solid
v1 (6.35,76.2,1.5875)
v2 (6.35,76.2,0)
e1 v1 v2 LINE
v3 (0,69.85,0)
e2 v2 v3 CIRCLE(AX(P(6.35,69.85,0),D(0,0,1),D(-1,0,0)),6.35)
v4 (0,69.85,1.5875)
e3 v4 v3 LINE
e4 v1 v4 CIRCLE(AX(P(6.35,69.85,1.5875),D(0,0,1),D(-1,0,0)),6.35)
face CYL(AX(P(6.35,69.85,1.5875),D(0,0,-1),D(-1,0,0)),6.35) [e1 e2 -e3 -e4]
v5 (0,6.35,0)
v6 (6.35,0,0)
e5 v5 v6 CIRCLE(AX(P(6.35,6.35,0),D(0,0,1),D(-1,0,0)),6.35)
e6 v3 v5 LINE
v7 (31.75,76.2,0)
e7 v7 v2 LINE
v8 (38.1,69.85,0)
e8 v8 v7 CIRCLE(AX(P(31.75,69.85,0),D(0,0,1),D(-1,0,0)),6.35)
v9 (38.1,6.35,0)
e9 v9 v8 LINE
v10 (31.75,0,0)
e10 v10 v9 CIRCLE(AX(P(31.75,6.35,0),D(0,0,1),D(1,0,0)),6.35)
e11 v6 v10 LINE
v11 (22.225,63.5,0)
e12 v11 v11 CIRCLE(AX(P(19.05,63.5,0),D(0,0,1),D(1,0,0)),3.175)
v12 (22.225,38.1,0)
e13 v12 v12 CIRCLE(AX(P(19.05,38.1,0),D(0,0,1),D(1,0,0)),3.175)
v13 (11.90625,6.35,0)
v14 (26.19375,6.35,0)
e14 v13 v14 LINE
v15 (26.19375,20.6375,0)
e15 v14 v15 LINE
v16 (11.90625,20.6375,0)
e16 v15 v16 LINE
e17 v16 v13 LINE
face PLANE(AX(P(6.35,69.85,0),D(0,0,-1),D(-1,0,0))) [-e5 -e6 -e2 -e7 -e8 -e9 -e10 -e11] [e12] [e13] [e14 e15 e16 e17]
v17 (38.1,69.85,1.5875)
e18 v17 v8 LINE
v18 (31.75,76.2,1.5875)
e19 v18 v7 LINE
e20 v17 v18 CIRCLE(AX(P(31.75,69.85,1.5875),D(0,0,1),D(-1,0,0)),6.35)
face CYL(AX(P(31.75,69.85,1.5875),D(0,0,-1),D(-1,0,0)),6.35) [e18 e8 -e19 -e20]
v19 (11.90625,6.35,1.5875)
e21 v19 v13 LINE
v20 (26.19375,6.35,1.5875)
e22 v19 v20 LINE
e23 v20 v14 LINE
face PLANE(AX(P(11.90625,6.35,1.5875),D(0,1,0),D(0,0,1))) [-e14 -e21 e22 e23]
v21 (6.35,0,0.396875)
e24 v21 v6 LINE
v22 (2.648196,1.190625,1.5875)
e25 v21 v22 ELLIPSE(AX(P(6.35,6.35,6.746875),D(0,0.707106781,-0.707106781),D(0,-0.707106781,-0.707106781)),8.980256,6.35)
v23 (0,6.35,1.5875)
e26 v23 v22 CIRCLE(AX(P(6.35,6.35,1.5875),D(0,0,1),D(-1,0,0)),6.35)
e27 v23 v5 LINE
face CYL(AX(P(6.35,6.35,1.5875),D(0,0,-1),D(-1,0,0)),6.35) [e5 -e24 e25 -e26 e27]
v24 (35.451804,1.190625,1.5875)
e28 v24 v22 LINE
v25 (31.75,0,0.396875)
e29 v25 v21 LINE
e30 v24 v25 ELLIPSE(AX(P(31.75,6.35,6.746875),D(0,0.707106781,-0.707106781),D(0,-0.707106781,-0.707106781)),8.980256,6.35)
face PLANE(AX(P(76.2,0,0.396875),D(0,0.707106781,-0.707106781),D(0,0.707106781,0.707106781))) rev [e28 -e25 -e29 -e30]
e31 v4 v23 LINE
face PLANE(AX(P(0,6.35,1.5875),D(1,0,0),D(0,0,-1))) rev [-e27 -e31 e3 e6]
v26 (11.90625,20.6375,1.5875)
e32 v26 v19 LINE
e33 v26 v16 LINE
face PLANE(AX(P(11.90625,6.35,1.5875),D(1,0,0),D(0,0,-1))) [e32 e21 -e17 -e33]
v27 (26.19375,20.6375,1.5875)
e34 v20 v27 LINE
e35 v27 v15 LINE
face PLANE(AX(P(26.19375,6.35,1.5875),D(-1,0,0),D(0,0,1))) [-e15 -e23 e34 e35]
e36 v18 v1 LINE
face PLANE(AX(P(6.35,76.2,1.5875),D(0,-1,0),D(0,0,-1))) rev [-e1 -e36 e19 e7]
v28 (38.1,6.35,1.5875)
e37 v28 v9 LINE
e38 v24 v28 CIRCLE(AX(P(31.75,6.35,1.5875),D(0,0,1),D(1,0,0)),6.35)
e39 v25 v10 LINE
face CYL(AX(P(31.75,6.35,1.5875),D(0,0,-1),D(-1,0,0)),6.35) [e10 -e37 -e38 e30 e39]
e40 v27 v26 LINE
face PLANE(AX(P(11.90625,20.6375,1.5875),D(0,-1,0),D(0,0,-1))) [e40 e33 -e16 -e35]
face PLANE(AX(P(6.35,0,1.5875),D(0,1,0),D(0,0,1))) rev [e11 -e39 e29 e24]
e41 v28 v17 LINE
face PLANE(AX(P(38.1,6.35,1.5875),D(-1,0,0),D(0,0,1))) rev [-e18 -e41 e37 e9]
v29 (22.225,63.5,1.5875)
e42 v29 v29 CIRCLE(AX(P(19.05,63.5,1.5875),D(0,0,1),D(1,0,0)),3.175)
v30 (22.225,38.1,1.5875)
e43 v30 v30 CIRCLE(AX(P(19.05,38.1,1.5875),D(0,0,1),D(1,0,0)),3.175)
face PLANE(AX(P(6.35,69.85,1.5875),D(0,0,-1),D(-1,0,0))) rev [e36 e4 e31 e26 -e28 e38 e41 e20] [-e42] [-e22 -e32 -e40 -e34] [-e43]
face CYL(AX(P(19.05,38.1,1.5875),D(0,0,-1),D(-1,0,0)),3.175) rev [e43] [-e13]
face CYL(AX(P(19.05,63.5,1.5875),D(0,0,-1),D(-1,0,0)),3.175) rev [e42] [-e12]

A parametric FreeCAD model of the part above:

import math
import FreeCAD as App
import Part
import Sketcher
from FreeCAD import Vector
Q = App.Units.Quantity


def add_polygon(sketch, points):
    """Adds a closed chain of lines whose ends are joined by coincident constraints."""
    first, n = sketch.GeometryCount, len(points)
    for a, b in zip(points, points[1:] + points[:1]):
        sketch.addGeometry(Part.LineSegment(App.Vector(*a, 0), App.Vector(*b, 0)), False)
    for i in range(n):
        sketch.addConstraint(Sketcher.Constraint("Coincident", first + i, 2, first + (i + 1) % n, 1))

doc = App.newDocument("Part")
body = doc.addObject("PartDesign::Body", "Body")

sketch1 = body.newObject("Sketcher::SketchObject", "Sketch")
sketch1.AttachmentSupport = (doc.getObject("XY_Plane"), [""])
sketch1.MapMode = "FlatFace"
sketch1.addGeometry(Part.LineSegment(Vector(6.3, 0, 0), Vector(31.8, 0, 0)), False)
sketch1.addGeometry(Part.ArcOfCircle(Part.Circle(Vector(31.8, 6.3, 0), Vector(0, 0, 1), 6.3), math.radians(-90), math.radians(0)), False)
sketch1.addGeometry(Part.LineSegment(Vector(38.1, 6.3, 0), Vector(38.1, 69.8, 0)), False)
sketch1.addGeometry(Part.ArcOfCircle(Part.Circle(Vector(31.8, 69.9, 0), Vector(0, 0, 1), 6.3), math.radians(0), math.radians(90)), False)
sketch1.addGeometry(Part.LineSegment(Vector(31.8, 76.2, 0), Vector(6.3, 76.2, 0)), False)
sketch1.addGeometry(Part.ArcOfCircle(Part.Circle(Vector(6.3, 69.9, 0), Vector(0, 0, 1), 6.3), math.radians(90), math.radians(180)), False)
sketch1.addGeometry(Part.LineSegment(Vector(0, 69.8, 0), Vector(0, 6.3, 0)), False)
sketch1.addGeometry(Part.ArcOfCircle(Part.Circle(Vector(6.3, 6.3, 0), Vector(0, 0, 1), 6.3), math.radians(180), math.radians(270)), False)
add_polygon(sketch1, [(26.2, 6.3), (11.9, 6.3), (11.9, 20.6), (26.2, 20.6)])
sketch1.addGeometry(Part.Circle(Vector(19.1, 38.1, 0), Vector(0, 0, 1), 3.2), False)
sketch1.addGeometry(Part.Circle(Vector(19.1, 63.5, 0), Vector(0, 0, 1), 3.2), False)
sketch1.addConstraint(Sketcher.Constraint("Tangent", 0, 2, 1, 1))
sketch1.addConstraint(Sketcher.Constraint("Tangent", 1, 2, 2, 1))
sketch1.addConstraint(Sketcher.Constraint("Tangent", 2, 2, 3, 1))
sketch1.addConstraint(Sketcher.Constraint("Tangent", 3, 2, 4, 1))
sketch1.addConstraint(Sketcher.Constraint("Tangent", 4, 2, 5, 1))
sketch1.addConstraint(Sketcher.Constraint("Tangent", 5, 2, 6, 1))
sketch1.addConstraint(Sketcher.Constraint("Tangent", 6, 2, 7, 1))
sketch1.addConstraint(Sketcher.Constraint("Tangent", 7, 2, 0, 1))
sketch1.addConstraint(Sketcher.Constraint("Horizontal", 0))
sketch1.addConstraint(Sketcher.Constraint("Vertical", 2))
sketch1.addConstraint(Sketcher.Constraint("Horizontal", 4))
sketch1.addConstraint(Sketcher.Constraint("Vertical", 6))
sketch1.addConstraint(Sketcher.Constraint("Horizontal", 8))
sketch1.addConstraint(Sketcher.Constraint("Vertical", 9))
sketch1.addConstraint(Sketcher.Constraint("Horizontal", 10))
sketch1.addConstraint(Sketcher.Constraint("Vertical", 11))
sketch1.addConstraint(Sketcher.Constraint("Equal", 1, 3))
sketch1.addConstraint(Sketcher.Constraint("Equal", 3, 5))
sketch1.addConstraint(Sketcher.Constraint("Equal", 5, 7))
sketch1.addConstraint(Sketcher.Constraint("Equal", 12, 13))
sketch1.addConstraint(Sketcher.Constraint("PointOnObject", 0, 2, -1))
sketch1.addConstraint(Sketcher.Constraint("PointOnObject", 5, 2, -2))
sketch1.addConstraint(Sketcher.Constraint("Horizontal", 6, 2, 8, 2))
sketch1.addConstraint(Sketcher.Constraint("Vertical", 12, 3, 13, 3))
sketch1.addConstraint(Sketcher.Constraint("Equal", 10, 9))
sketch1.addConstraint(Sketcher.Constraint("Diameter", 12, Q("0.25 in")))
sketch1.addConstraint(Sketcher.Constraint("DistanceX", 0, 1, 0, 2, Q("1 in")))
sketch1.addConstraint(Sketcher.Constraint("Radius", 1, Q("0.25 in")))
sketch1.addConstraint(Sketcher.Constraint("DistanceY", 2, 1, 2, 2, Q("2.5 in")))
sketch1.addConstraint(Sketcher.Constraint("DistanceY", 12, 3, 13, 3, Q("1 in")))
sketch1.addConstraint(Sketcher.Constraint("DistanceY", -1, 1, 12, 3, Q("1.5 in")))
sketch1.addConstraint(Sketcher.Constraint("DistanceX", 12, 3, 1, 3, Q("0.5 in")))
sketch1.addConstraint(Sketcher.Constraint("DistanceX", 8, 2, 8, 1, Q("0.5625 in")))
sketch1.addConstraint(Sketcher.Constraint("DistanceX", -1, 1, 8, 2, Q("0.46875 in")))
pad1 = body.newObject("PartDesign::Pad", "Pad")
pad1.Profile = sketch1
pad1.Length = Q("0.0625 in")

sketch2 = body.newObject("Sketcher::SketchObject", "Sketch001")
sketch2.AttachmentSupport = (doc.getObject("YZ_Plane"), [""])
sketch2.MapMode = "FlatFace"
add_polygon(sketch2, [(1.2, 1.6), (0, 0.4), (0, 1.6)])
sketch2.addConstraint(Sketcher.Constraint("Vertical", 1))
sketch2.addConstraint(Sketcher.Constraint("Horizontal", 2))
sketch2.addConstraint(Sketcher.Constraint("PointOnObject", 0, 2, -2))
sketch2.addConstraint(Sketcher.Constraint("Equal", 2, 1))
sketch2.addConstraint(Sketcher.Constraint("DistanceX", 2, 1, 2, 2, Q("0.046875 in")))
sketch2.addConstraint(Sketcher.Constraint("DistanceY", -1, 1, 0, 2, Q("0.015625 in")))
pocket1 = body.newObject("PartDesign::Pocket", "Pocket")
pocket1.Profile = sketch2
pocket1.Length = Q("3 in")
pocket1.Reversed = True

doc.recompute()
